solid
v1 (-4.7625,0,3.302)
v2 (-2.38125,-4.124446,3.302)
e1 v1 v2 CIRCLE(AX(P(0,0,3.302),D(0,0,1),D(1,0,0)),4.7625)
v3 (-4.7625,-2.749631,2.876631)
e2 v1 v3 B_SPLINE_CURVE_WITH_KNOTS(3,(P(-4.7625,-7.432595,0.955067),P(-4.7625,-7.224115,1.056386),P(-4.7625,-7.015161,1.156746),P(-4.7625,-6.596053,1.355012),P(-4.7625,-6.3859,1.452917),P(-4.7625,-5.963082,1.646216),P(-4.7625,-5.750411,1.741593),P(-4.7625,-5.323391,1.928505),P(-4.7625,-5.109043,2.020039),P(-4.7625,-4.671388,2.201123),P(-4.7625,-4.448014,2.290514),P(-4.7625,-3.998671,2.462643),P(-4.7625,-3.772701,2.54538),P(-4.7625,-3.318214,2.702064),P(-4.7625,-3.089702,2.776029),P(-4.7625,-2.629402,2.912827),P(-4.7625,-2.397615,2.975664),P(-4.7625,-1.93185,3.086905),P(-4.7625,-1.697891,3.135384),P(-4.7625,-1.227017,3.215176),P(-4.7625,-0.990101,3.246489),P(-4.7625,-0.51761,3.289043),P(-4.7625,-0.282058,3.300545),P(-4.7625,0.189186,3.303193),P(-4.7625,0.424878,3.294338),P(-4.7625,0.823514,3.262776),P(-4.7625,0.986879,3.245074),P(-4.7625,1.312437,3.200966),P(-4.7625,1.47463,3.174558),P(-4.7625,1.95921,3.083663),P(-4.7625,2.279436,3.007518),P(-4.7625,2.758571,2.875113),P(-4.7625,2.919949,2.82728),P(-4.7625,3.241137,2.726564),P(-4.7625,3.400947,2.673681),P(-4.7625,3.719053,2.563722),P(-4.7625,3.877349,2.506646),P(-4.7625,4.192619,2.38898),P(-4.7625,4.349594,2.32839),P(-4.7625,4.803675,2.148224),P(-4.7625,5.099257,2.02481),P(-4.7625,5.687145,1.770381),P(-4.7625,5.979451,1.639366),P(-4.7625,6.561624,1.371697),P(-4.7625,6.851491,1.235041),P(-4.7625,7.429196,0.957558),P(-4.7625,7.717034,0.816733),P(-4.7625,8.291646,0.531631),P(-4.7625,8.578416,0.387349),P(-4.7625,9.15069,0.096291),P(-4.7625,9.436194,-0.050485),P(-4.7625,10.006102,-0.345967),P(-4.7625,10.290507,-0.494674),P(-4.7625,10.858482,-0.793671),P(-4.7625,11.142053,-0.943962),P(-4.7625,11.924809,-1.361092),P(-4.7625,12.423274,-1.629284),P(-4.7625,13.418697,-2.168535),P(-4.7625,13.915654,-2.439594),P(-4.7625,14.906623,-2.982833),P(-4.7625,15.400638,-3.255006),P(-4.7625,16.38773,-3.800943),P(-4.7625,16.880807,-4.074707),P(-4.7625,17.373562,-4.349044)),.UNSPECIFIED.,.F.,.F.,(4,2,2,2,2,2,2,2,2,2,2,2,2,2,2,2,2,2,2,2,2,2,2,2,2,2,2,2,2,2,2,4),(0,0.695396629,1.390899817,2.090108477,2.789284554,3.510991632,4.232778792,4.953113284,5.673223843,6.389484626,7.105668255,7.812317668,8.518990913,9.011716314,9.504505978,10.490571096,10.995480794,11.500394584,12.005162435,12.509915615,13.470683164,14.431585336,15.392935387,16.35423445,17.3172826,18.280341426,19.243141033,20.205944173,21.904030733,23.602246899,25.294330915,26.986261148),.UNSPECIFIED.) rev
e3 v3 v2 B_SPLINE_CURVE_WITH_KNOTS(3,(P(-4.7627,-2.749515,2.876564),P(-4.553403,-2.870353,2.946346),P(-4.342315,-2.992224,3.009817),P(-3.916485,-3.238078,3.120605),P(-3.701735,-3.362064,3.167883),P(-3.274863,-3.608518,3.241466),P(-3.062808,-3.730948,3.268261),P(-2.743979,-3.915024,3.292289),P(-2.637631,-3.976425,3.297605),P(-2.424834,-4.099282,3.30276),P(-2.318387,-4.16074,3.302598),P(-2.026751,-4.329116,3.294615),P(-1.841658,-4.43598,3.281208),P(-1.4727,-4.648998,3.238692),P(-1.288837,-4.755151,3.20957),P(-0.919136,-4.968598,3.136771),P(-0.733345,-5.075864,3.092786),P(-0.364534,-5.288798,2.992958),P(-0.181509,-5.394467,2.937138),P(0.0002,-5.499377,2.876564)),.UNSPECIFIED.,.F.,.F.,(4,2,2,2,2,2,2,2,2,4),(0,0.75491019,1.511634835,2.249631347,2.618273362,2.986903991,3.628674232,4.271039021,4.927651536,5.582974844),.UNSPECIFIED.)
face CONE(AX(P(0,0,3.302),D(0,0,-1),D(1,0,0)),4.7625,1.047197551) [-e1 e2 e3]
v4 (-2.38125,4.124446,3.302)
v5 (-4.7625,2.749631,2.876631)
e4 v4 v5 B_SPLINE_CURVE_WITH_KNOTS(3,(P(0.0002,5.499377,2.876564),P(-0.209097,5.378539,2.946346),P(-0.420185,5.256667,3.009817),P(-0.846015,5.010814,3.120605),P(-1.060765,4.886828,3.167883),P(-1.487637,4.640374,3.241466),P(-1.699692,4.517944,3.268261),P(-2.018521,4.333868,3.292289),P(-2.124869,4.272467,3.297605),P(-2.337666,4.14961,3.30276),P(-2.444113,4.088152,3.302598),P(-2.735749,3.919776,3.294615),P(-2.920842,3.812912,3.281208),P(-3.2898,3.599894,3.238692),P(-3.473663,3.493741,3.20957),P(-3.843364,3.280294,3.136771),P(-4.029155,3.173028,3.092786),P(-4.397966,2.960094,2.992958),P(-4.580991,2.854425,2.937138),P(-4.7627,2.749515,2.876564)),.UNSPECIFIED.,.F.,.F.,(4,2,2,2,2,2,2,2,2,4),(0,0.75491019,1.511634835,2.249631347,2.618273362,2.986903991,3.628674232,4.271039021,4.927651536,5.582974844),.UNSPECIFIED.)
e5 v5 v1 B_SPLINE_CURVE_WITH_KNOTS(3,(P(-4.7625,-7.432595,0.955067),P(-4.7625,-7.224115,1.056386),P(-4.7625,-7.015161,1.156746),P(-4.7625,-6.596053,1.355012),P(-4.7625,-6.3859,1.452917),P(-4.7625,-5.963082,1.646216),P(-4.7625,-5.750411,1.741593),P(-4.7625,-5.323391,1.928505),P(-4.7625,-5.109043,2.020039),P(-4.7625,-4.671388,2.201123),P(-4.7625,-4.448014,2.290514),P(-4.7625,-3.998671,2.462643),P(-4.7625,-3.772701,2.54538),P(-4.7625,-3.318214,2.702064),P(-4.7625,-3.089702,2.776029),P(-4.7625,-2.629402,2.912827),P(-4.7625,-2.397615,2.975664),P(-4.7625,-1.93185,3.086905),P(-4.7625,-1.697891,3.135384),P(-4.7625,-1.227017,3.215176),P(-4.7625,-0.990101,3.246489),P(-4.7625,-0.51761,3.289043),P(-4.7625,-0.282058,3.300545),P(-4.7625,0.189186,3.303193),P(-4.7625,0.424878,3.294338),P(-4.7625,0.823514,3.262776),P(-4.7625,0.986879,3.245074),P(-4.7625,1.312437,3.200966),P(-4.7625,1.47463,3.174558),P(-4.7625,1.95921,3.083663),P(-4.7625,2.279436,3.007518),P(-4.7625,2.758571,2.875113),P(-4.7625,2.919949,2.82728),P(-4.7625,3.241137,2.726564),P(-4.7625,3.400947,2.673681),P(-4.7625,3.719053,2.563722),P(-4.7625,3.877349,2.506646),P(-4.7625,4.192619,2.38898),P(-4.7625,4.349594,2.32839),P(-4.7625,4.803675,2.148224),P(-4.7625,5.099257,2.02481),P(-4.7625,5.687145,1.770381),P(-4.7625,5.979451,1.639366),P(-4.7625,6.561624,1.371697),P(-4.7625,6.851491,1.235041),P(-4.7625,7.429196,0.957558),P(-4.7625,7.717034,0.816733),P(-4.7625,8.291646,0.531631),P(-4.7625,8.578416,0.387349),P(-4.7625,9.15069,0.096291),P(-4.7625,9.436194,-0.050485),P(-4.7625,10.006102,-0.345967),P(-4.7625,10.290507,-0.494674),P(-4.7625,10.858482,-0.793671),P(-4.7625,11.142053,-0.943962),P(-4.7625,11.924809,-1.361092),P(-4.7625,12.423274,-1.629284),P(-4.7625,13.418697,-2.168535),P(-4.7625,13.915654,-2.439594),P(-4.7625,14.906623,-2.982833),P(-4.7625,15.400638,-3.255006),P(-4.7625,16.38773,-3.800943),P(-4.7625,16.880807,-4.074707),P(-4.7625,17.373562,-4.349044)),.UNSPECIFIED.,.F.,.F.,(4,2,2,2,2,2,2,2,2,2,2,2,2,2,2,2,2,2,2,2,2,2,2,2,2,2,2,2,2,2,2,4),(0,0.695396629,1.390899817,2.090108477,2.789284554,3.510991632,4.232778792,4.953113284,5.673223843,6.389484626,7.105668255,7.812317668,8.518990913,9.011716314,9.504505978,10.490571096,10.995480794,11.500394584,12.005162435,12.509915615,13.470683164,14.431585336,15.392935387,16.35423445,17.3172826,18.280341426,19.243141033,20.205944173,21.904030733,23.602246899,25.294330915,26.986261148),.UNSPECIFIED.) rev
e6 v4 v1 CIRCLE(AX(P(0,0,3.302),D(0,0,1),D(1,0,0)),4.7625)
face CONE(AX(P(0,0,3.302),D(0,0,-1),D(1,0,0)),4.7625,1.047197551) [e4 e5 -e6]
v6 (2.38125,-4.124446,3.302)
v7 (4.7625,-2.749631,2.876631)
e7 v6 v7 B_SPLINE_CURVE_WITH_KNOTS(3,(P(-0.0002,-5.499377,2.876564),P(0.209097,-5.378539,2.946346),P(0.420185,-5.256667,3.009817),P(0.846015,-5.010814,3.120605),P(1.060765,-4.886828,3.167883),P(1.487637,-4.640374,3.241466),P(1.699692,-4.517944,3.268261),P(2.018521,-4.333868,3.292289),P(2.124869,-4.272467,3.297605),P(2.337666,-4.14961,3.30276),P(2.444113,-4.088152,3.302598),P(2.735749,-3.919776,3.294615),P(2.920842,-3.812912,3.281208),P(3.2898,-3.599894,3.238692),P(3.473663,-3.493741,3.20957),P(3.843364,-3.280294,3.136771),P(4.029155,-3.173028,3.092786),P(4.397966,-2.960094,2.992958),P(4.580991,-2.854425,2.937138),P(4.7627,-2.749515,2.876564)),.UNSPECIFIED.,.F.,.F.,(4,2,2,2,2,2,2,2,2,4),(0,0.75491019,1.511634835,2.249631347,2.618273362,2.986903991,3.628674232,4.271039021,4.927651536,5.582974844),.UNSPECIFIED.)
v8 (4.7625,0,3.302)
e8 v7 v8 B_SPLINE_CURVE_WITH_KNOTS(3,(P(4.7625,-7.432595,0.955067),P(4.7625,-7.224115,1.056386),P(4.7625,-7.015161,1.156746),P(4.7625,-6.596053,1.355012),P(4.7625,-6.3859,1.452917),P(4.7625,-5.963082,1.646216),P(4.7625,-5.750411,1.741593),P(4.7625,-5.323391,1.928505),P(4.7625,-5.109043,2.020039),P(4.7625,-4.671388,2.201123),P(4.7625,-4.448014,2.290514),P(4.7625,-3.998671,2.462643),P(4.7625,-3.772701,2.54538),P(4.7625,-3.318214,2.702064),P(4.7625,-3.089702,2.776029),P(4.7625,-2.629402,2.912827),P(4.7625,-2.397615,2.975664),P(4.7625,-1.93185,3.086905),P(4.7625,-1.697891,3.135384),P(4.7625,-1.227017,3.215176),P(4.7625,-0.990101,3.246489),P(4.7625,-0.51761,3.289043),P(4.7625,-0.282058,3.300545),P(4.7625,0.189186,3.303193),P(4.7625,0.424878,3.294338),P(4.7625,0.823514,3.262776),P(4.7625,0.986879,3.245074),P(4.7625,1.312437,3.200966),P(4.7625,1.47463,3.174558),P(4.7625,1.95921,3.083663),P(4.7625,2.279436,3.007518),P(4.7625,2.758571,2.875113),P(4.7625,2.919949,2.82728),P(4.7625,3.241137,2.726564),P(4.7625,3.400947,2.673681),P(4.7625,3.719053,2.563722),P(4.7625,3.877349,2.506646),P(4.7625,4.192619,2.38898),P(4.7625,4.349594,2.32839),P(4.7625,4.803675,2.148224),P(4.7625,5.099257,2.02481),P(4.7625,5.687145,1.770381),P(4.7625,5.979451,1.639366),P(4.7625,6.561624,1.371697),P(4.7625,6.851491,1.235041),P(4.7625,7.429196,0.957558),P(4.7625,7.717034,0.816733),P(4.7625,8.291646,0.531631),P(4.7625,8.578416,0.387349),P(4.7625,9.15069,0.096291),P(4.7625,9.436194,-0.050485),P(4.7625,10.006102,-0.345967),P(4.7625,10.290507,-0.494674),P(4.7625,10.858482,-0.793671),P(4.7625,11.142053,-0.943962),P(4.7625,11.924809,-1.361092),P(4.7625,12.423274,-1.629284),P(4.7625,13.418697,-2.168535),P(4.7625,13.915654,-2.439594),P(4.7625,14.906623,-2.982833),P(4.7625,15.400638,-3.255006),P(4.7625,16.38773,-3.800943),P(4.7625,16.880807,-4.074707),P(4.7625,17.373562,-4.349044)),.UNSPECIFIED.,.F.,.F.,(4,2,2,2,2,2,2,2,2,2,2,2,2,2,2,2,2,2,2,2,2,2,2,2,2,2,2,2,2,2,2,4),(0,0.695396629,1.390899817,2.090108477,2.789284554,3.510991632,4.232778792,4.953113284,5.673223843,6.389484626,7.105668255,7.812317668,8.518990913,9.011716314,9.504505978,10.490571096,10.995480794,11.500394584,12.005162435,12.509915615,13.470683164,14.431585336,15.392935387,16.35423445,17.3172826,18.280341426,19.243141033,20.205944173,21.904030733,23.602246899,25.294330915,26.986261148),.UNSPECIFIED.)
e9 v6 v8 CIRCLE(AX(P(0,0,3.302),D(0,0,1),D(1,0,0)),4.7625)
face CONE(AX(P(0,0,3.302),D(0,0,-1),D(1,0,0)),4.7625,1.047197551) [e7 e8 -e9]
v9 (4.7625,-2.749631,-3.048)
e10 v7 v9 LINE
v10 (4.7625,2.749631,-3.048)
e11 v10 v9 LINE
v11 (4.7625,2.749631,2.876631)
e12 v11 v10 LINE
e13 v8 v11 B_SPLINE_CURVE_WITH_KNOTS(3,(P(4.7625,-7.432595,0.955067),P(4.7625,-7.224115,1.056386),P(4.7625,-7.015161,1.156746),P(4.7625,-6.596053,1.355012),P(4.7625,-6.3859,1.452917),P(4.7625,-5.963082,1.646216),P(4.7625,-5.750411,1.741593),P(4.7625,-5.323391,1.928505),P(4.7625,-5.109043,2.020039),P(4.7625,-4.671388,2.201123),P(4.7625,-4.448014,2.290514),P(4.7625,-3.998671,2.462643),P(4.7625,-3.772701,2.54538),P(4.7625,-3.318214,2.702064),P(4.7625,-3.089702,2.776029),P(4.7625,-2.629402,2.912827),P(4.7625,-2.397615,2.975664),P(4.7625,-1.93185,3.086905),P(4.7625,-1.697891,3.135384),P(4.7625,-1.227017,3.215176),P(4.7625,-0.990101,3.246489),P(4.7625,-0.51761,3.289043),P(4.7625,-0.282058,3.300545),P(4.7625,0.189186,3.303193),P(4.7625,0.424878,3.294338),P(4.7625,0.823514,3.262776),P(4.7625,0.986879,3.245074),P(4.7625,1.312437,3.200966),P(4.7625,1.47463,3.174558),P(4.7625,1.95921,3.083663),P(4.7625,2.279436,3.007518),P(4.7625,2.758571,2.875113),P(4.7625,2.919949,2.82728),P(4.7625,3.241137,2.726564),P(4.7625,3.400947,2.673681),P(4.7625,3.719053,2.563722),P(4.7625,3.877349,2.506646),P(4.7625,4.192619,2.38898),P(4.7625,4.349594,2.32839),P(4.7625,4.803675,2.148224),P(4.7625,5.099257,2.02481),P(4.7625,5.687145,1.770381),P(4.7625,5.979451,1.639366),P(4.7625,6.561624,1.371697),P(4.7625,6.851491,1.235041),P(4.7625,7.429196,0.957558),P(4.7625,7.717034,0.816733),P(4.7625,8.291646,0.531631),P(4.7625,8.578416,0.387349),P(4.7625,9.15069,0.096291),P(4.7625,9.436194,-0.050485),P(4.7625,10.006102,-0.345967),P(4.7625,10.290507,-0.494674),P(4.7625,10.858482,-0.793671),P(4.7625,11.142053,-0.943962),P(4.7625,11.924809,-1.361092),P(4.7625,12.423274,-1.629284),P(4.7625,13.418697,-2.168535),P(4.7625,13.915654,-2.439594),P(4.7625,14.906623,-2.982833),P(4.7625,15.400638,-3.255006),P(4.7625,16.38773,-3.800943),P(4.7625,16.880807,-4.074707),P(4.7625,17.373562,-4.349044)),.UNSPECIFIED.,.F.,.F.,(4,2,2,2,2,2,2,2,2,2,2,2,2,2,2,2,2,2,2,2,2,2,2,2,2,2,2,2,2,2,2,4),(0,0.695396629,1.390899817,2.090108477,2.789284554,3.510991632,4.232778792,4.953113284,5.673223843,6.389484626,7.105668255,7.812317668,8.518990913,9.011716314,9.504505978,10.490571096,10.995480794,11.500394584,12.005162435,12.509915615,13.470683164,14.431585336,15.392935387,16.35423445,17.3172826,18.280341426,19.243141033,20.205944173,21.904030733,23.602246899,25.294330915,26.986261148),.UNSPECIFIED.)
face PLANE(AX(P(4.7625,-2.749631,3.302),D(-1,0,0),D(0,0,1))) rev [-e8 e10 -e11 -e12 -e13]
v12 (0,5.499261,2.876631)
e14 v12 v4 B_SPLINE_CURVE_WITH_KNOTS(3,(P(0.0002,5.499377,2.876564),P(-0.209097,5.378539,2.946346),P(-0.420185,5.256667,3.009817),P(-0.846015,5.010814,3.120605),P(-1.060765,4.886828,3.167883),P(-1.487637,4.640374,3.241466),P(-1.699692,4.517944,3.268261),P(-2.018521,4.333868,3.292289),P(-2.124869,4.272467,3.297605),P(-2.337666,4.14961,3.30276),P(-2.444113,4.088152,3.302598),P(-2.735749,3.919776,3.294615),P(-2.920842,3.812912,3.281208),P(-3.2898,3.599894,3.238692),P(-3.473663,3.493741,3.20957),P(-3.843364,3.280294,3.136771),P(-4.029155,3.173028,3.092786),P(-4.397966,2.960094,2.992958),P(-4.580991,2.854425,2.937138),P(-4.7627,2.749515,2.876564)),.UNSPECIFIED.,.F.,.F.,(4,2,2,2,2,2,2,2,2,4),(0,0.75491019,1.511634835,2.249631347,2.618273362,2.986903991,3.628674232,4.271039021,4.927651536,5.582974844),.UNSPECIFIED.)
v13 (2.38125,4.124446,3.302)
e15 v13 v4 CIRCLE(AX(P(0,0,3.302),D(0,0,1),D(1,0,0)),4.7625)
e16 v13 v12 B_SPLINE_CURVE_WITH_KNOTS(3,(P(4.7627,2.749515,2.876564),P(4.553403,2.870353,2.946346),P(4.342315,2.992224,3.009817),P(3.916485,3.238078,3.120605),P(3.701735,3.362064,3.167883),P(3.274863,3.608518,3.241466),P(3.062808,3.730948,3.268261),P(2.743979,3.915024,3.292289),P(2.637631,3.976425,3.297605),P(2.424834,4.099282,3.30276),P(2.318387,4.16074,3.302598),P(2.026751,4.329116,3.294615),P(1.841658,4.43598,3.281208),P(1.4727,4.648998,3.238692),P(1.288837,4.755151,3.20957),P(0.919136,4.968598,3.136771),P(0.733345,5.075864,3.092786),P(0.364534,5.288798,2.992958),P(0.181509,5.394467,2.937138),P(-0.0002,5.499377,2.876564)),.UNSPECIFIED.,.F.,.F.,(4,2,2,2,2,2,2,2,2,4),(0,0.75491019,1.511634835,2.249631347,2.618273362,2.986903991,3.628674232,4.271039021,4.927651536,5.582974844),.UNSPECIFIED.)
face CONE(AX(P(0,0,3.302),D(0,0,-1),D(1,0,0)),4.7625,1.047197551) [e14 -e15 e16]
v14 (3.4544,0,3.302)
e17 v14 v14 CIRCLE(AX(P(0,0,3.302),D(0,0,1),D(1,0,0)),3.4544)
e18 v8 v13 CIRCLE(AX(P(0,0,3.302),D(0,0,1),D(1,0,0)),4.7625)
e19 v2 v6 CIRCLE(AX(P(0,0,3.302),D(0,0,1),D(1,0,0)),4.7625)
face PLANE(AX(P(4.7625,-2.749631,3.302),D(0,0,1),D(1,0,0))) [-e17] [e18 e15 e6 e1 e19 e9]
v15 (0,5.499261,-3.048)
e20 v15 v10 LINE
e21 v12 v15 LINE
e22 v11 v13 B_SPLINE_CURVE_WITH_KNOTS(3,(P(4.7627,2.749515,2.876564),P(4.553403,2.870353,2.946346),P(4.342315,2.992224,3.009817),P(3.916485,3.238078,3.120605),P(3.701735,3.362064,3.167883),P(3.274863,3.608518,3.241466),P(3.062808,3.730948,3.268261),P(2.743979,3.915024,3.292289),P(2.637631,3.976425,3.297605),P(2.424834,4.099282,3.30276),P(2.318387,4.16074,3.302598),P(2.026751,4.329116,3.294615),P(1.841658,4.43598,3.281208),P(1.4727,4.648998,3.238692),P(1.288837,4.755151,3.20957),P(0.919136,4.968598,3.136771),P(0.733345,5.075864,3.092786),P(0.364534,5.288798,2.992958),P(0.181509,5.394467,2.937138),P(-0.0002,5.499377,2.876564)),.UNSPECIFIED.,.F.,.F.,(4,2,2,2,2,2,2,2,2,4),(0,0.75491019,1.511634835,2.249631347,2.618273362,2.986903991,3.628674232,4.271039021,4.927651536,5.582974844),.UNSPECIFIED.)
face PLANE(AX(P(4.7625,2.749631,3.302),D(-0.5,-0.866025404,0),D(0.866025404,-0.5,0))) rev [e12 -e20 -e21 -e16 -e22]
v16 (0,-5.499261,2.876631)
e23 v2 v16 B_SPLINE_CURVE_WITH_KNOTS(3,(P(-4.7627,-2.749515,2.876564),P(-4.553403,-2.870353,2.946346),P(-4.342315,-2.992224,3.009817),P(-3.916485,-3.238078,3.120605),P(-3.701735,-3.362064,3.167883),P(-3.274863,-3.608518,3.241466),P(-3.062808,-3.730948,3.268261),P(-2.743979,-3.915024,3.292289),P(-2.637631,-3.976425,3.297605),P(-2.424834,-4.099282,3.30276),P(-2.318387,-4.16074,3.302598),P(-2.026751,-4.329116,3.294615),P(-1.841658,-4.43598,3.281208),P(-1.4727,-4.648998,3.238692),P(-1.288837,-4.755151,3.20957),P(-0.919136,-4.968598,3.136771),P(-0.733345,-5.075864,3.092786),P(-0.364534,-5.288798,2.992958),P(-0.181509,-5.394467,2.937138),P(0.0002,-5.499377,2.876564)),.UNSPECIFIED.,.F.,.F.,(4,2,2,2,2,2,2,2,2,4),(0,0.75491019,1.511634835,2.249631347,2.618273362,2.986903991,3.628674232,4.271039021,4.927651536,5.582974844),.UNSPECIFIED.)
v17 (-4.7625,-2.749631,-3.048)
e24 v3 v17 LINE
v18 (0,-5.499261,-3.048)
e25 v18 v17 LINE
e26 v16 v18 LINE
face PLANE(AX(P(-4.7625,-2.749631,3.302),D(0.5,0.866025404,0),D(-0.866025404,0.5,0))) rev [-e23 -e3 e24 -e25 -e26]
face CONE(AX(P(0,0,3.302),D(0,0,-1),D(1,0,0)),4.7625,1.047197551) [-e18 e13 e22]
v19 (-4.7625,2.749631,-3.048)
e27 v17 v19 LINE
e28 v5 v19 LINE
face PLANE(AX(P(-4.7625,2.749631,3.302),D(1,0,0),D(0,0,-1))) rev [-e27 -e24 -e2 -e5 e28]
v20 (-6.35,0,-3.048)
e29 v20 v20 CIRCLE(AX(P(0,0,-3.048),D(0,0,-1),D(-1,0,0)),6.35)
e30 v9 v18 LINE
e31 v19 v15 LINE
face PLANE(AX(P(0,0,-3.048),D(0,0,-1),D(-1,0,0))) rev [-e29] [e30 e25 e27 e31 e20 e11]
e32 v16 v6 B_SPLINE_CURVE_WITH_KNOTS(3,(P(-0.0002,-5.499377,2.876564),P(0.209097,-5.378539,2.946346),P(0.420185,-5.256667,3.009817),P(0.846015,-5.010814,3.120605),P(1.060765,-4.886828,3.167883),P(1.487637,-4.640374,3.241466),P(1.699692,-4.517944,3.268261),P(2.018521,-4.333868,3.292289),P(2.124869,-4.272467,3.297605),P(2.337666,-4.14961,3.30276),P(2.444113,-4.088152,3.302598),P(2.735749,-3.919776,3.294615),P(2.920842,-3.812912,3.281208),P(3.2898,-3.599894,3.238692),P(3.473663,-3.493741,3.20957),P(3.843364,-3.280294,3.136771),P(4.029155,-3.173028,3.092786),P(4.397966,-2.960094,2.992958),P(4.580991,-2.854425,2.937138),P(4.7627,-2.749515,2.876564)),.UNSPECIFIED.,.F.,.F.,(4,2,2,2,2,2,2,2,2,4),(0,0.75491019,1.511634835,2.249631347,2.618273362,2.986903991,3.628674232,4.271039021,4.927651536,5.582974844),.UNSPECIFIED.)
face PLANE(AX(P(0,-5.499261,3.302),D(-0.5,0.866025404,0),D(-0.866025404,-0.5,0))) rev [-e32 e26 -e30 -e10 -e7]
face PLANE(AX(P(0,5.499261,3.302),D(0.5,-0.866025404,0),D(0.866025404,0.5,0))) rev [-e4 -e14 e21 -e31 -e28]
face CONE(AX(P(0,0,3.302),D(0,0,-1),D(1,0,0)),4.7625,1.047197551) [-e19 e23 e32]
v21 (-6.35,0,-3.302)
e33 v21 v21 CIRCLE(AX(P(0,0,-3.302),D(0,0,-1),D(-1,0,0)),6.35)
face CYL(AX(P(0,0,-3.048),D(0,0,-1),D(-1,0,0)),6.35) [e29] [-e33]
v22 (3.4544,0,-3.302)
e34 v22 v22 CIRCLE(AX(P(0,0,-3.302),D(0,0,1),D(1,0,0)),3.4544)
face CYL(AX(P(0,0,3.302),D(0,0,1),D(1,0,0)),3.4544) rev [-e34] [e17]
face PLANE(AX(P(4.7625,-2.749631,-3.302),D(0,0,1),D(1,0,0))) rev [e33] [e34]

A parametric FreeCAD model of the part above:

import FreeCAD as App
import Part
import Sketcher
Q = App.Units.Quantity

doc = App.newDocument("Part")
body = doc.addObject("PartDesign::Body", "Body")

sketch1 = doc.addObject("Sketcher::SketchObject", "Sketch")
body.addObject(sketch1)
sketch1.AttachmentSupport = (doc.XY_Plane, [""])
sketch1.MapMode = "FlatFace"
sketch1.addGeometry([
    Part.LineSegment(App.Vector(5, -3, 0), App.Vector(5, 3, 0)),
    Part.LineSegment(App.Vector(5, 3, 0), App.Vector(0, 5, 0)),
    Part.LineSegment(App.Vector(0, 5, 0), App.Vector(-5, 3, 0)),
    Part.LineSegment(App.Vector(-5, 3, 0), App.Vector(-5, -3, 0)),
    Part.LineSegment(App.Vector(-5, -3, 0), App.Vector(0, -5, 0)),
    Part.LineSegment(App.Vector(0, -5, 0), App.Vector(5, -3, 0)),
], False)
sketch1.addConstraint([
    Sketcher.Constraint("Coincident", 0, 2, 1, 1),
    Sketcher.Constraint("Coincident", 1, 2, 2, 1),
    Sketcher.Constraint("Coincident", 2, 2, 3, 1),
    Sketcher.Constraint("Coincident", 3, 2, 4, 1),
    Sketcher.Constraint("Coincident", 4, 2, 5, 1),
    Sketcher.Constraint("Coincident", 5, 2, 0, 1),
    Sketcher.Constraint("Vertical", 0),
    Sketcher.Constraint("Vertical", 3),
    Sketcher.Constraint("Symmetric", 0, 2, 3, 2, -1, 1),
    Sketcher.Constraint("Symmetric", 1, 2, 4, 2, -1, 1),
    Sketcher.Constraint("PointOnObject", 1, 2, -2),
    Sketcher.Constraint("Parallel", 2, 5),
    Sketcher.Constraint("Horizontal", 0, 2, 2, 2),
    Sketcher.Constraint("Angle", 1, Q("150 deg")),
    Sketcher.Constraint("DistanceX", -1, 1, 0, 2, Q("0.1875 in")),
    Sketcher.Constraint("DistanceY", 0, 1, 0, 2, 5.499261),
])
pad1 = doc.addObject("PartDesign::Pad", "Pad")
body.addObject(pad1)
pad1.Profile = sketch1
pad1.Length = Q("0.26 in")
pad1.Midplane = True

sketch2 = doc.addObject("Sketcher::SketchObject", "Sketch001")
body.addObject(sketch2)
sketch2.AttachmentSupport = (doc.XY_Plane, [""])
sketch2.MapMode = "FlatFace"
sketch2.AttachmentOffset = App.Placement(App.Vector(0, 0, 0.13 * 25.4), App.Rotation())
sketch2.addGeometry([
    Part.LineSegment(App.Vector(-20.5, 21.3, 0), App.Vector(-20.5, -21.3, 0)),
    Part.LineSegment(App.Vector(-20.5, -21.3, 0), App.Vector(20.5, -21.3, 0)),
    Part.LineSegment(App.Vector(20.5, -21.3, 0), App.Vector(20.5, 21.3, 0)),
    Part.LineSegment(App.Vector(20.5, 21.3, 0), App.Vector(-20.5, 21.3, 0)),
    Part.Circle(App.Vector(0, 0, 0), App.Vector(0, 0, 1), 4.8),
], False)
sketch2.addConstraint([
    Sketcher.Constraint("Coincident", 0, 2, 1, 1),
    Sketcher.Constraint("Coincident", 1, 2, 2, 1),
    Sketcher.Constraint("Coincident", 2, 2, 3, 1),
    Sketcher.Constraint("Coincident", 3, 2, 0, 1),
    Sketcher.Constraint("Vertical", 0),
    Sketcher.Constraint("Horizontal", 1),
    Sketcher.Constraint("Vertical", 2),
    Sketcher.Constraint("Horizontal", 3),
    Sketcher.Constraint("Coincident", 4, 3, -1, 1),
    Sketcher.Constraint("Diameter", 4, Q("0.375 in")),
    Sketcher.Constraint("DistanceX", 1, 1, 1, 2, 41.061),
    Sketcher.Constraint("DistanceY", 0, 2, 0, 1, 42.534),
    Sketcher.Constraint("DistanceX", 0, 2, -1, 1, 20.531),
    Sketcher.Constraint("DistanceY", 0, 2, -1, 1, 21.267),
])
pocket1 = doc.addObject("PartDesign::Pocket", "Pocket")
body.addObject(pocket1)
pocket1.Profile = sketch2
pocket1.Length = 7.604
pocket1.TaperAngle = 60

sketch3 = doc.addObject("Sketcher::SketchObject", "Sketch002")
body.addObject(sketch3)
sketch3.AttachmentSupport = (doc.XY_Plane, [""])
sketch3.MapMode = "FlatFace"
sketch3.AttachmentOffset = App.Placement(App.Vector(0, 0, -0.13 * 25.4), App.Rotation())
sketch3.addGeometry(Part.Circle(App.Vector(0, 0, 0), App.Vector(0, 0, 1), 6), False)
sketch3.addConstraint([
    Sketcher.Constraint("Coincident", 0, 3, -1, 1),
    Sketcher.Constraint("Diameter", 0, Q("0.5 in")),
])
pad2 = doc.addObject("PartDesign::Pad", "Pad001")
body.addObject(pad2)
pad2.Profile = sketch3
pad2.Length = Q("0.01 in")

sketch4 = doc.addObject("Sketcher::SketchObject", "Sketch003")
body.addObject(sketch4)
sketch4.AttachmentSupport = (doc.XY_Plane, [""])
sketch4.MapMode = "FlatFace"
sketch4.AttachmentOffset = App.Placement(App.Vector(0, 0, 0.13 * 25.4), App.Rotation())
sketch4.addGeometry(Part.Circle(App.Vector(0, 0, 0), App.Vector(0, 0, 1), 3.5), False)
sketch4.addConstraint([
    Sketcher.Constraint("Coincident", 0, 3, -1, 1),
    Sketcher.Constraint("Diameter", 0, Q("0.272 in")),
])
doc.recompute()
hole = doc.addObject("PartDesign::Hole", "Hole")
body.addObject(hole)
hole.Profile = sketch4
hole.ThreadType = "None"
hole.Diameter = Q("0.272 in")
hole.DepthType = "ThroughAll"

doc.recompute()
